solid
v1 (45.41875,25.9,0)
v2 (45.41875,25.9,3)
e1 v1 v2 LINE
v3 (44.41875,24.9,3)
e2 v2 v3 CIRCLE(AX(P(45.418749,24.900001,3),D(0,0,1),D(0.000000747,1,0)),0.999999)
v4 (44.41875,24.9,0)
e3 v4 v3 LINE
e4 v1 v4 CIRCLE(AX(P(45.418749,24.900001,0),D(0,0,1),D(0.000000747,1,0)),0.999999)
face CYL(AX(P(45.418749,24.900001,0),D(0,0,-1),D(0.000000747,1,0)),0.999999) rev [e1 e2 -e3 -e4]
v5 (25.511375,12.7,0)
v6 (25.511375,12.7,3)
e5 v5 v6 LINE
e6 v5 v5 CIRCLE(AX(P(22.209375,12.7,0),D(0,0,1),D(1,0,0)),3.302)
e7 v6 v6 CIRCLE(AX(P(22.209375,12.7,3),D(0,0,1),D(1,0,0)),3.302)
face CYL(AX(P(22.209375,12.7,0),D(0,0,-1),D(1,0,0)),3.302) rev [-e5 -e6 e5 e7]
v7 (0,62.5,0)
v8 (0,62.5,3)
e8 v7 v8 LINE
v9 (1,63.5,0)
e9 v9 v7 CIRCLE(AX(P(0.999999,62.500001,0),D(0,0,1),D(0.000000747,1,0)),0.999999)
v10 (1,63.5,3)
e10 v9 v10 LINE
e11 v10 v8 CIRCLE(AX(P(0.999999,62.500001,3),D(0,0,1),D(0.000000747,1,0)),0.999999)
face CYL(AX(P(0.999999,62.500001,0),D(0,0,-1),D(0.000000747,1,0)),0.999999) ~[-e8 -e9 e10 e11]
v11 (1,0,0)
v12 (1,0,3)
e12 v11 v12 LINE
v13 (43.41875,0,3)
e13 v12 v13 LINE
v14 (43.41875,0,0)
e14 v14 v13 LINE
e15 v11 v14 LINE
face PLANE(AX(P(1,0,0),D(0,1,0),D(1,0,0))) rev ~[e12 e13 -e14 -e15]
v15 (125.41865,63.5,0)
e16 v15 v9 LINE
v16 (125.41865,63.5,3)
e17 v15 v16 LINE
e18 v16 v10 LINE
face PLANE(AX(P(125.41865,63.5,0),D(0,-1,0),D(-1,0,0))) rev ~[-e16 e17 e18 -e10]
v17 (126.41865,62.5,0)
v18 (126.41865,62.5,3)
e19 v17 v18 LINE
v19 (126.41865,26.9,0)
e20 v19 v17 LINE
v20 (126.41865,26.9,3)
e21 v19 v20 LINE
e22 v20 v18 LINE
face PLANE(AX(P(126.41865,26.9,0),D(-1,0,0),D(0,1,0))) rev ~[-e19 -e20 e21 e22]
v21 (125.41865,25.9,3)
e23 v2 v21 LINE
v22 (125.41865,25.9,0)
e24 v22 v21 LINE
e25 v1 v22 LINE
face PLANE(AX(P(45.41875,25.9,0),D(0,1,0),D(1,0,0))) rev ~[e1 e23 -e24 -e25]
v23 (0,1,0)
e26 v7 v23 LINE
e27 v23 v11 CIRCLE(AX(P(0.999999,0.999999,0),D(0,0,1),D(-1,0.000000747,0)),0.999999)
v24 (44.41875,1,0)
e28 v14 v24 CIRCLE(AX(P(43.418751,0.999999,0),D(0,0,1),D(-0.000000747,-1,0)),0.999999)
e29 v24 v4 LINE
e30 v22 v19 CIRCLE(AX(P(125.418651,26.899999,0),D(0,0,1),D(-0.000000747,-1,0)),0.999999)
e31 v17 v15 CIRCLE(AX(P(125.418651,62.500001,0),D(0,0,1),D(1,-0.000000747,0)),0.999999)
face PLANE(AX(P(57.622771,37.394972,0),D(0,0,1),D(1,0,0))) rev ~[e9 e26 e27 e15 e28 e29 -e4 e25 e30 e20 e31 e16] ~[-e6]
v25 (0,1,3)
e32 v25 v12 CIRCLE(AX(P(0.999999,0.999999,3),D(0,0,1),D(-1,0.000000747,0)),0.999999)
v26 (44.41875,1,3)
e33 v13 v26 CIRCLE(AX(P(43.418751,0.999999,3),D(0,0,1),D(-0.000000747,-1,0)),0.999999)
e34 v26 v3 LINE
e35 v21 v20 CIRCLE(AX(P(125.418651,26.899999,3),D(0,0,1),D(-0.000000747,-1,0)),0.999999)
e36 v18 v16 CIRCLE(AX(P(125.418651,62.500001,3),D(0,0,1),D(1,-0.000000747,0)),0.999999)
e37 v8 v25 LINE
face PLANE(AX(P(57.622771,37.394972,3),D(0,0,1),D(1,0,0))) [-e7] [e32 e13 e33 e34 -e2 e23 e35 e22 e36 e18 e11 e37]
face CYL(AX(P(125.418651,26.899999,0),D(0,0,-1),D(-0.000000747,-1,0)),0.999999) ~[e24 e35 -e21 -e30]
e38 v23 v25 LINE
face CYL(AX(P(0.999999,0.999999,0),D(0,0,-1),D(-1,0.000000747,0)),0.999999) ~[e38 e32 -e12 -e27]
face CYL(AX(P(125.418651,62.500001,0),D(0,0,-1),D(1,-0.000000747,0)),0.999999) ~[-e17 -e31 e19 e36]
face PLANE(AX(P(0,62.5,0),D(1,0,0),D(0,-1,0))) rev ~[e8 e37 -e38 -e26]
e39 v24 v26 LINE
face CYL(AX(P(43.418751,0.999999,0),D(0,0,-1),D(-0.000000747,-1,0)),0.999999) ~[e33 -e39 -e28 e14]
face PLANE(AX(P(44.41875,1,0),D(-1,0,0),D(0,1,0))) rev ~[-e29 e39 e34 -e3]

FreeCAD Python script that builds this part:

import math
import FreeCAD as App
import Part
import Sketcher

V = App.Vector
Q = App.Units.Quantity

doc = App.newDocument("Part")
body = doc.addObject("PartDesign::Body", "Body")

# Sketch on XY plane
sketch1 = doc.addObject("Sketcher::SketchObject", "Sketch")
body.addObject(sketch1)
sketch1.AttachmentSupport = (doc.XY_Plane, [""])
sketch1.MapMode = "FlatFace"
sketch1.addGeometry([
    Part.LineSegment(V(0, 62.5, 0), V(0, 1, 0)),  # 0
    Part.ArcOfCircle(Part.Circle(V(0.999999, 0.999999, 0), V(0, 0, 1), 0.999999), math.radians(179.999957), math.radians(270.000043)),  # 1
    Part.LineSegment(V(1, 0, 0), V(43.41875, 0, 0)),  # 2
    Part.ArcOfCircle(Part.Circle(V(43.418751, 0.999999, 0), V(0, 0, 1), 0.999999), math.radians(-90.000043), math.radians(0.000043)),  # 3
    Part.LineSegment(V(44.41875, 1, 0), V(44.41875, 24.9, 0)),  # 4
    Part.ArcOfCircle(Part.Circle(V(45.418749, 24.900001, 0), V(0, 0, 1), 0.999999), math.radians(89.999957), math.radians(180.000043)),  # 5
    Part.LineSegment(V(45.41875, 25.9, 0), V(125.41865, 25.9, 0)),  # 6
    Part.ArcOfCircle(Part.Circle(V(125.418651, 26.899999, 0), V(0, 0, 1), 0.999999), math.radians(-90.000043), math.radians(0.000043)),  # 7
    Part.LineSegment(V(126.41865, 26.9, 0), V(126.41865, 62.5, 0)),  # 8
    Part.ArcOfCircle(Part.Circle(V(125.418651, 62.500001, 0), V(0, 0, 1), 0.999999), math.radians(-0.000043), math.radians(90.000043)),  # 9
    Part.LineSegment(V(125.41865, 63.5, 0), V(1, 63.5, 0)),  # 10
    Part.ArcOfCircle(Part.Circle(V(0.999999, 62.500001, 0), V(0, 0, 1), 0.999999), math.radians(89.999957), math.radians(180.000043)),  # 11
    Part.Circle(V(22.209375, 12.7, 0), V(0, 0, 1), 3.302),  # 12
], False)
sketch1.addConstraint([
    Sketcher.Constraint("Tangent", 0, 2, 1, 1),
    Sketcher.Constraint("Tangent", 1, 2, 2, 1),
    Sketcher.Constraint("Tangent", 2, 2, 3, 1),
    Sketcher.Constraint("Tangent", 3, 2, 4, 1),
    Sketcher.Constraint("Tangent", 4, 2, 5, 2),
    Sketcher.Constraint("Tangent", 5, 1, 6, 1),
    Sketcher.Constraint("Tangent", 6, 2, 7, 1),
    Sketcher.Constraint("Tangent", 7, 2, 8, 1),
    Sketcher.Constraint("Tangent", 8, 2, 9, 1),
    Sketcher.Constraint("Tangent", 9, 2, 10, 1),
    Sketcher.Constraint("Tangent", 10, 2, 11, 1),
    Sketcher.Constraint("Tangent", 11, 2, 0, 1),
    Sketcher.Constraint("Vertical", 0),
    Sketcher.Constraint("Horizontal", 2),
    Sketcher.Constraint("Vertical", 4),
    Sketcher.Constraint("Horizontal", 6),
    Sketcher.Constraint("Vertical", 8),
    Sketcher.Constraint("Horizontal", 10),
    Sketcher.Constraint("Equal", 1, 3),
    Sketcher.Constraint("Equal", 3, 5),
    Sketcher.Constraint("Equal", 5, 7),
    Sketcher.Constraint("Equal", 7, 9),
    Sketcher.Constraint("Equal", 9, 11),
    Sketcher.Constraint("PointOnObject", 0, 2, -2),
    Sketcher.Constraint("PointOnObject", 1, 2, -1),
    Sketcher.Constraint("Radius", 1, Q("0.999999 mm")),
    Sketcher.Constraint("Diameter", 12, Q("6.604 mm")),
    Sketcher.Constraint("DistanceY", 0, 2, 0, 1, Q("61.5 mm")),
    Sketcher.Constraint("DistanceY", 4, 1, 4, 2, Q("23.9 mm")),
    Sketcher.Constraint("DistanceY", -1, 1, 12, 3, Q("12.7 mm")),
    Sketcher.Constraint("DistanceX", 6, 1, 6, 2, Q("79.9999 mm")),
    Sketcher.Constraint("DistanceX", 2, 1, 2, 2, Q("42.41875 mm")),
    Sketcher.Constraint("DistanceX", -1, 1, 12, 3, Q("22.209375 mm")),
])
pad1 = doc.addObject("PartDesign::Pad", "Pad")
body.addObject(pad1)
pad1.Profile = sketch1
pad1.Length = 3

doc.recompute()
